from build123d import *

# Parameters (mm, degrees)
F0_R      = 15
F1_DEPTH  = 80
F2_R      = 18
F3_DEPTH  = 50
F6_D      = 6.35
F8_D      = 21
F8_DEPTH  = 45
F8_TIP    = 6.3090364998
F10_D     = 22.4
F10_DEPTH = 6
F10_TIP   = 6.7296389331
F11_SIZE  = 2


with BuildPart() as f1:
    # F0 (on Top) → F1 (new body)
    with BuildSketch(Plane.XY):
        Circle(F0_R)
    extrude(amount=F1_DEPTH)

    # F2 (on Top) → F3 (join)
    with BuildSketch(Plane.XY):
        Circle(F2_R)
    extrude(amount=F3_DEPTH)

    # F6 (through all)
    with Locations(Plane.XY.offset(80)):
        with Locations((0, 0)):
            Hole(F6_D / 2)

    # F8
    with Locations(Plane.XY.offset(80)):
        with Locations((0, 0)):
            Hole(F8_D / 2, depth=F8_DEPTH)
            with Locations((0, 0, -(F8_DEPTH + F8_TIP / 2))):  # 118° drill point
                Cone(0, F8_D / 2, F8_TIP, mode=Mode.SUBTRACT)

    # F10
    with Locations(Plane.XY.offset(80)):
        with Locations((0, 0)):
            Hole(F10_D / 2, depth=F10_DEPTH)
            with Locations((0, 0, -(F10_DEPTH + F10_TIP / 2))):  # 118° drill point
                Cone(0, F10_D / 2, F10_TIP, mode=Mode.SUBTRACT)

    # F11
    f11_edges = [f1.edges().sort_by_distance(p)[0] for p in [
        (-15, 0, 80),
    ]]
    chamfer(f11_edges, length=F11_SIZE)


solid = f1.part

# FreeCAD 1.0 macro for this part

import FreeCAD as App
import Part
import Sketcher


def edges_at(feature, points):
    """Names of the edges that pass closest to the given points."""
    edges = feature.Shape.Edges
    near = lambda p: min(range(len(edges)), key=lambda i: edges[i].distToShape(Part.Vertex(*p))[0])
    return sorted({f"Edge{near(p) + 1}" for p in points})

doc = App.newDocument("Part")
params = doc.addObject("Spreadsheet::Sheet", "Params")
for row, (alias, value) in enumerate([
    ("sketch1_diameter", "30 mm"),
    ("pad1_length", "80 mm"),
    ("sketch2_diameter", "36 mm"),
    ("pad2_length", "50 mm"),
    ("sketch3_diameter", "6.35 mm"),
    ("hole_diameter", "6.35 mm"),
    ("sketch4_diameter", "21 mm"),
    ("hole2_diameter", "21 mm"),
    ("hole2_depth", "45 mm"),
    ("sketch5_diameter", "22.4 mm"),
    ("hole3_diameter", "22.4 mm"),
    ("hole3_depth", "6 mm"),
    ("chamfer_size", "2 mm"),
], start=1):
    params.set(f"A{row}", alias)
    params.set(f"B{row}", "=" + value)
    params.setAlias(f"B{row}", alias)

body = doc.addObject("PartDesign::Body", "Body")

sketch1 = body.newObject("Sketcher::SketchObject", "Sketch")
sketch1.AttachmentSupport = (doc.getObject("XY_Plane"), [""])
sketch1.MapMode = "FlatFace"
sketch1.addGeometry(Part.Circle(App.Vector(0, 0, 0), App.Vector(0, 0, 1), 15), False)
sketch1.addConstraint([
    Sketcher.Constraint("Coincident", 0, 3, -1, 1),
    Sketcher.Constraint("Diameter", 0, 30.0),
])
sketch1.setExpression("Constraints[1]", "Params.sketch1_diameter")
pad1 = body.newObject("PartDesign::Pad", "Pad")
pad1.Profile = sketch1
pad1.setExpression("Length", "Params.pad1_length")

sketch2 = body.newObject("Sketcher::SketchObject", "Sketch001")
sketch2.AttachmentSupport = (doc.getObject("XY_Plane"), [""])
sketch2.MapMode = "FlatFace"
sketch2.addGeometry(Part.Circle(App.Vector(0, 0, 0), App.Vector(0, 0, 1), 18), False)
sketch2.addConstraint([
    Sketcher.Constraint("Coincident", 0, 3, -1, 1),
    Sketcher.Constraint("Diameter", 0, 36.0),
])
sketch2.setExpression("Constraints[1]", "Params.sketch2_diameter")
pad2 = body.newObject("PartDesign::Pad", "Pad001")
pad2.Profile = sketch2
pad2.setExpression("Length", "Params.pad2_length")

sketch3 = body.newObject("Sketcher::SketchObject", "Sketch002")
sketch3.AttachmentSupport = (doc.getObject("XY_Plane"), [""])
sketch3.MapMode = "FlatFace"
sketch3.AttachmentOffset = App.Placement(App.Vector(0, 0, 80), App.Rotation())
sketch3.addGeometry(Part.Circle(App.Vector(0, 0, 0), App.Vector(0, 0, 1), 3.175), False)
sketch3.addConstraint([
    Sketcher.Constraint("Coincident", 0, 3, -1, 1),
    Sketcher.Constraint("Diameter", 0, 6.35),
])
sketch3.setExpression("Constraints[1]", "Params.sketch3_diameter")
doc.recompute()
hole = body.newObject("PartDesign::Hole", "Hole")
hole.Profile = sketch3
hole.ThreadType = "None"
hole.setExpression("Diameter", "Params.hole_diameter")
hole.DepthType = "ThroughAll"

sketch4 = body.newObject("Sketcher::SketchObject", "Sketch003")
sketch4.AttachmentSupport = (doc.getObject("XY_Plane"), [""])
sketch4.MapMode = "FlatFace"
sketch4.AttachmentOffset = App.Placement(App.Vector(0, 0, 80), App.Rotation())
sketch4.addGeometry(Part.Circle(App.Vector(0, 0, 0), App.Vector(0, 0, 1), 10.5), False)
sketch4.addConstraint([
    Sketcher.Constraint("Coincident", 0, 3, -1, 1),
    Sketcher.Constraint("Diameter", 0, 21.0),
])
sketch4.setExpression("Constraints[1]", "Params.sketch4_diameter")
doc.recompute()
hole2 = body.newObject("PartDesign::Hole", "Hole001")
hole2.Profile = sketch4
hole2.ThreadType = "None"
hole2.setExpression("Diameter", "Params.hole2_diameter")
hole2.DepthType = "Dimension"
hole2.setExpression("Depth", "Params.hole2_depth")
hole2.DrillPoint = "Angled"
hole2.DrillPointAngle = 118

sketch5 = body.newObject("Sketcher::SketchObject", "Sketch004")
sketch5.AttachmentSupport = (doc.getObject("XY_Plane"), [""])
sketch5.MapMode = "FlatFace"
sketch5.AttachmentOffset = App.Placement(App.Vector(0, 0, 80), App.Rotation())
sketch5.addGeometry(Part.Circle(App.Vector(0, 0, 0), App.Vector(0, 0, 1), 11.2), False)
sketch5.addConstraint([
    Sketcher.Constraint("Coincident", 0, 3, -1, 1),
    Sketcher.Constraint("Diameter", 0, 22.4),
])
sketch5.setExpression("Constraints[1]", "Params.sketch5_diameter")
doc.recompute()
hole3 = body.newObject("PartDesign::Hole", "Hole002")
hole3.Profile = sketch5
hole3.ThreadType = "None"
hole3.setExpression("Diameter", "Params.hole3_diameter")
hole3.DepthType = "Dimension"
hole3.setExpression("Depth", "Params.hole3_depth")
hole3.DrillPoint = "Angled"
hole3.DrillPointAngle = 118
doc.recompute()

chamfer = body.newObject("PartDesign::Chamfer", "Chamfer")
chamfer.Base = (hole3, edges_at(hole3, [(-15, 0, 80)]))
chamfer.setExpression("Size", "Params.chamfer_size")

doc.recompute()
